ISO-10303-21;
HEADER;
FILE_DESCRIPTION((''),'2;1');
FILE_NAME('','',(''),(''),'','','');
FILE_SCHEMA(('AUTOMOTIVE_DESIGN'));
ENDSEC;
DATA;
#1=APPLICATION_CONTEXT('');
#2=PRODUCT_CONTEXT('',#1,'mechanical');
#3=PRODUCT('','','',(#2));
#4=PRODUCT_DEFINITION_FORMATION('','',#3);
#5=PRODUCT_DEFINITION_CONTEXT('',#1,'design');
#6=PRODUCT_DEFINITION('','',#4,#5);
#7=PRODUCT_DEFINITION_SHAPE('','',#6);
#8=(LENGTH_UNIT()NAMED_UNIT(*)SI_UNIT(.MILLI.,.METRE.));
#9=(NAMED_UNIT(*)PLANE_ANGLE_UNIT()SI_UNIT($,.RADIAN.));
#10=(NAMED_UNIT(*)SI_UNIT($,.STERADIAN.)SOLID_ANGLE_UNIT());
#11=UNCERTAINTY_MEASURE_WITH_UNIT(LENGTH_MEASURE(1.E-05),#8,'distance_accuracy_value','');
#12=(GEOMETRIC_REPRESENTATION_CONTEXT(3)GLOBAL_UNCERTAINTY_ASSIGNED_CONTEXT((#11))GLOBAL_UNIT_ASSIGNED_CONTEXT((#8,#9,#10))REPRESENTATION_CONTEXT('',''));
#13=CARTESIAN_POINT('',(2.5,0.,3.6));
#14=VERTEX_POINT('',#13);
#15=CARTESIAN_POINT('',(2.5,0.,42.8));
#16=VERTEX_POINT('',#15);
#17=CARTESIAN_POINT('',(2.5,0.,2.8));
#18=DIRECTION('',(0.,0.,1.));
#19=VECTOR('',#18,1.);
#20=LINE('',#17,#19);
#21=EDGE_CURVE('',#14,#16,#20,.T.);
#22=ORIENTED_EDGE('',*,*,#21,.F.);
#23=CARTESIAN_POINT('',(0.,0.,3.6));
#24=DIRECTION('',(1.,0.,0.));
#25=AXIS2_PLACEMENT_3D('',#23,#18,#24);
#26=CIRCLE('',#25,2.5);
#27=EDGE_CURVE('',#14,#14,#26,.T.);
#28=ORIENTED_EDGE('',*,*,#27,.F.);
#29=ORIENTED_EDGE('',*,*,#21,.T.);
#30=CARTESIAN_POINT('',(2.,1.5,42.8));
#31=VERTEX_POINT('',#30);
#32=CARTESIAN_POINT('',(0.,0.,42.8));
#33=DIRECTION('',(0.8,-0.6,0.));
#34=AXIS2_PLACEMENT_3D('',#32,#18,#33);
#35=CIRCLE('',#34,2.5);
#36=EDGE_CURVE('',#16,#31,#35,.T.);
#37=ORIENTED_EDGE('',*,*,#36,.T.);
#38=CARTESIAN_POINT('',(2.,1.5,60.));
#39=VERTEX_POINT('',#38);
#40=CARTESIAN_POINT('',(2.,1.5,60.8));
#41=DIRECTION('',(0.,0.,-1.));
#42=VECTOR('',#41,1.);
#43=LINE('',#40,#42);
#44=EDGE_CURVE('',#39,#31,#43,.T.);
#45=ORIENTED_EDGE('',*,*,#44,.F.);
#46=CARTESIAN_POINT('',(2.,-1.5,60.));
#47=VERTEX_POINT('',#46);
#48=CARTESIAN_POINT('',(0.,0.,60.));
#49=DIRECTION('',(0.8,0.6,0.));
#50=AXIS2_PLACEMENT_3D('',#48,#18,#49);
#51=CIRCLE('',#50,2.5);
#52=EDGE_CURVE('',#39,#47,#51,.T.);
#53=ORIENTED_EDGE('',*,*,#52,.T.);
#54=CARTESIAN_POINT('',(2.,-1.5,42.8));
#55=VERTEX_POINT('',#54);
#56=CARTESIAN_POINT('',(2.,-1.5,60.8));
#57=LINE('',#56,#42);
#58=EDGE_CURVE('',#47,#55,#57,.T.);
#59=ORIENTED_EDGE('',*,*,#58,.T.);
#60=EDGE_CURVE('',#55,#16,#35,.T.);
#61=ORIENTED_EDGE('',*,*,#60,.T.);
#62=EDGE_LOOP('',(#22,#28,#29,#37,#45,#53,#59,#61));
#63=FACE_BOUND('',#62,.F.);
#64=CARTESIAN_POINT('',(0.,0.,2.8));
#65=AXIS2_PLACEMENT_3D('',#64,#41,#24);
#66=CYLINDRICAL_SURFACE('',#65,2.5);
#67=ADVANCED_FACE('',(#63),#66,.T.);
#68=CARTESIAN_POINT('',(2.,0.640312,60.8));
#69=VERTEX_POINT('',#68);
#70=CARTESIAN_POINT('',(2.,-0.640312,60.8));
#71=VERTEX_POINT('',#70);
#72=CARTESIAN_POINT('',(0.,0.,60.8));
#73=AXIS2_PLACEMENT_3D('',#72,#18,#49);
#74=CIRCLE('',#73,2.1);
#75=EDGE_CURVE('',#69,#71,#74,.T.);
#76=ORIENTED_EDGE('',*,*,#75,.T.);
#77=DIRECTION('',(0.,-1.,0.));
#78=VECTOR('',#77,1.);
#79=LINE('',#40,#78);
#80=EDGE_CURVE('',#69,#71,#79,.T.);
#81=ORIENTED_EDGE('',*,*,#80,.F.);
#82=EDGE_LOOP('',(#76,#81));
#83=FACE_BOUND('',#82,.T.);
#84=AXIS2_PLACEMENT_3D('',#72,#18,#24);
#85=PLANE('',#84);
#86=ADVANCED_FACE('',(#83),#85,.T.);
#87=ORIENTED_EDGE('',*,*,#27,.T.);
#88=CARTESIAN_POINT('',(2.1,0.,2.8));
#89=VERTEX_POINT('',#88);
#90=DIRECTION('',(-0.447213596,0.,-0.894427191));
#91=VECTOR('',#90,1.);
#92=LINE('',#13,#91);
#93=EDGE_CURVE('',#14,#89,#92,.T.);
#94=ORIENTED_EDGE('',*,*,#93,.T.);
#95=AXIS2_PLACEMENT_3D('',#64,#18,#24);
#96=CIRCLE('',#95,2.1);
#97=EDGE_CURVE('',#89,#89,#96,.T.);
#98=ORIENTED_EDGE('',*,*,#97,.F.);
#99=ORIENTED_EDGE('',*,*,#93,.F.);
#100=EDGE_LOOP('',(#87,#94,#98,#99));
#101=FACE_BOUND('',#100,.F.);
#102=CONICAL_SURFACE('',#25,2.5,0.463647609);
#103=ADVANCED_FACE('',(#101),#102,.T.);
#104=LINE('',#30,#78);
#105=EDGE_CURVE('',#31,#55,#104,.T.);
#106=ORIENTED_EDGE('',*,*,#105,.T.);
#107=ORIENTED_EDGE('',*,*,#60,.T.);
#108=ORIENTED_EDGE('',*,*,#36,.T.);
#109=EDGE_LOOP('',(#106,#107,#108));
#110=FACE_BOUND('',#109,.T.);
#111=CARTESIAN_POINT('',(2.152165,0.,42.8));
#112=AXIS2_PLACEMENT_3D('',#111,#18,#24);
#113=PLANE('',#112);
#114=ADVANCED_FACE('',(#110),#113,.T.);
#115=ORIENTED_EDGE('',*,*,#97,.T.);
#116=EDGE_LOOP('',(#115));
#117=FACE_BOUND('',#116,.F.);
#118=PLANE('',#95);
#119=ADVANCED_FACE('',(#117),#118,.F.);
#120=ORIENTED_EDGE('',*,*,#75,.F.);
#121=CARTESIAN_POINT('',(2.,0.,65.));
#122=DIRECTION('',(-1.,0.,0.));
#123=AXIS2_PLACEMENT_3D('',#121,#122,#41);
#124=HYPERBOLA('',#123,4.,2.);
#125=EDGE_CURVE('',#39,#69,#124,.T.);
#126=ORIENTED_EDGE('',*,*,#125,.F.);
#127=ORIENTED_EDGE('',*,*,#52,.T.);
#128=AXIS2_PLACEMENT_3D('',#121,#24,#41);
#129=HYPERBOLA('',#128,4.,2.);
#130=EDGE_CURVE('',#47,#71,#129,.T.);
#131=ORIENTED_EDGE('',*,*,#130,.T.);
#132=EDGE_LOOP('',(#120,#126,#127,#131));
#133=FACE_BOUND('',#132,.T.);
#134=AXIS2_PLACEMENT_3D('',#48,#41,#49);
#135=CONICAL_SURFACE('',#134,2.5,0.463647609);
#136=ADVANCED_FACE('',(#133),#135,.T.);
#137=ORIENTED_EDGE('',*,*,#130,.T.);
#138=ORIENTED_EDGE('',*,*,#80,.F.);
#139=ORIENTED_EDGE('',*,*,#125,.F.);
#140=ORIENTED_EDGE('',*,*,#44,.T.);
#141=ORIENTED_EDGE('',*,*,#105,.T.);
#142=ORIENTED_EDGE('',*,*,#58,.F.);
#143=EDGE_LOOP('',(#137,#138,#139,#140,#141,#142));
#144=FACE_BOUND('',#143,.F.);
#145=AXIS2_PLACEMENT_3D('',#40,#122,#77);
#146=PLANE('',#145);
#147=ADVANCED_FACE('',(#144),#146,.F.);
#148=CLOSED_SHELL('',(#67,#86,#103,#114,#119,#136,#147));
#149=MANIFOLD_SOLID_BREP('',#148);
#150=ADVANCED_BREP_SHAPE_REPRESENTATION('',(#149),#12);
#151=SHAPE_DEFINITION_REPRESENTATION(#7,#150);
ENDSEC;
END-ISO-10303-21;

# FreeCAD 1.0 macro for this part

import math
import FreeCAD as App
import Part
import Sketcher

V = App.Vector
Q = App.Units.Quantity


def edges_at(feature, points):
    """Names of the edges that pass closest to the given points."""
    edges = feature.Shape.Edges
    near = lambda p: min(range(len(edges)), key=lambda i: edges[i].distToShape(Part.Vertex(*p))[0])
    return sorted({f"Edge{near(p) + 1}" for p in points})

doc = App.newDocument("Part")
params = doc.addObject("Spreadsheet::Sheet", "Params")
for row, (alias, value) in enumerate([
    ("sketch1_diameter", "5 mm"),
    ("pad1_length", "58 mm"),
    ("sketch2_radius", "2.5 mm"),
    ("sketch2_height", "3 mm"),
    ("pocket1_length", "18 mm"),
    ("chamfer_size", "0.8 mm"),
    ("chamfer_size2", "0.4 mm"),
], start=1):
    params.set(f"A{row}", alias)
    params.set(f"B{row}", "=" + value)
    params.setAlias(f"B{row}", alias)

body = doc.addObject("PartDesign::Body", "Body")

sketch1 = body.newObject("Sketcher::SketchObject", "Sketch")
sketch1.AttachmentSupport = (doc.getObject("XY_Plane"), [""])
sketch1.MapMode = "FlatFace"
sketch1.addGeometry(Part.Circle(V(0, 0, 0), V(0, 0, 1), 2.5), False)
sketch1.addConstraint([
    Sketcher.Constraint("Coincident", 0, 3, -1, 1),
    Sketcher.Constraint("Diameter", 0, Q("5 mm")),
])
sketch1.setExpression("Constraints[1]", "Params.sketch1_diameter")
pad1 = body.newObject("PartDesign::Pad", "Pad")
pad1.Profile = sketch1
pad1.setExpression("Length", "Params.pad1_length")

sketch2 = body.newObject("Sketcher::SketchObject", "Sketch001")
sketch2.AttachmentSupport = (doc.getObject("XY_Plane"), [""])
sketch2.MapMode = "FlatFace"
sketch2.AttachmentOffset = App.Placement(V(0, 0, 58), App.Rotation())
sketch2.addGeometry([
    Part.ArcOfCircle(Part.Circle(V(0, 0, 0), V(0, 0, 1), 2.5), math.radians(-37), math.radians(37)),
    Part.LineSegment(V(2, 1.5, 0), V(2, -1.5, 0)),
], False)
sketch2.addConstraint([
    Sketcher.Constraint("Coincident", 0, 1, 1, 2),
    Sketcher.Constraint("Coincident", 1, 1, 0, 2),
    Sketcher.Constraint("Vertical", 1),
    Sketcher.Constraint("Coincident", 0, 3, -1, 1),
    Sketcher.Constraint("Radius", 0, Q("2.5 mm")),
    Sketcher.Constraint("DistanceY", 1, 2, 1, 1, Q("3 mm")),
])
sketch2.setExpression("Constraints[4]", "Params.sketch2_radius")
sketch2.setExpression("Constraints[5]", "Params.sketch2_height")
pocket1 = body.newObject("PartDesign::Pocket", "Pocket")
pocket1.Profile = sketch2
pocket1.setExpression("Length", "Params.pocket1_length")
doc.recompute()

chamfer = body.newObject("PartDesign::Chamfer", "Chamfer")
chamfer.Base = (pocket1, edges_at(pocket1, [(-2.5, 0, 58), (-2.5, 0, 0)]))
chamfer.ChamferType = "Two distances"
chamfer.setExpression("Size", "Params.chamfer_size")
chamfer.setExpression("Size2", "Params.chamfer_size2")
body2 = doc.addObject("PartDesign::Body", "Body001")
doc.recompute()

body.Placement = App.Placement(V(0, 0, 2.8), App.Rotation(V(0, 0, 1), 0))
boolean = body2.newObject("PartDesign::Boolean", "Boolean")
boolean.Type = "Fuse"
boolean.addObjects([body])

doc.recompute()
